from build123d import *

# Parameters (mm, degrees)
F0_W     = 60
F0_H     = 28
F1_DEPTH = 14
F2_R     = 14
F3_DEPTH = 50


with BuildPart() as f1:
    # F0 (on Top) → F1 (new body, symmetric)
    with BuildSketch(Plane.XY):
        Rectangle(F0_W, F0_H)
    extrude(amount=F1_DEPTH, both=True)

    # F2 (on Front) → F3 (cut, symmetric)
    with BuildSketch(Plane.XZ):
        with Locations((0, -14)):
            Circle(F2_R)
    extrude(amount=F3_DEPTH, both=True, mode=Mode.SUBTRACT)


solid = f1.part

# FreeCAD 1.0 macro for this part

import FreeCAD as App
import Part
import Sketcher

doc = App.newDocument("Part")
params = doc.addObject("Spreadsheet::Sheet", "Params")
for row, (alias, value) in enumerate([
    ("sketch1_width", "60 mm"),
    ("sketch1_height", "28 mm"),
    ("pad1_length", "28 mm"),
    ("sketch2_diameter", "28 mm"),
    ("pocket1_length", "100 mm"),
], start=1):
    params.set(f"A{row}", alias)
    params.set(f"B{row}", "=" + value)
    params.setAlias(f"B{row}", alias)

body = doc.addObject("PartDesign::Body", "Body")

# Sketch on XY plane
sketch1 = body.newObject("Sketcher::SketchObject", "Sketch")
sketch1.AttachmentSupport = (doc.getObject("XY_Plane"), [""])
sketch1.MapMode = "FlatFace"
sketch1.addGeometry(Part.LineSegment(App.Vector(-30, 14, 0), App.Vector(-30, -14, 0)), False)
sketch1.addGeometry(Part.LineSegment(App.Vector(-30, -14, 0), App.Vector(30, -14, 0)), False)
sketch1.addGeometry(Part.LineSegment(App.Vector(30, -14, 0), App.Vector(30, 14, 0)), False)
sketch1.addGeometry(Part.LineSegment(App.Vector(30, 14, 0), App.Vector(-30, 14, 0)), False)
sketch1.addConstraint(Sketcher.Constraint("Coincident", 0, 2, 1, 1))
sketch1.addConstraint(Sketcher.Constraint("Coincident", 1, 2, 2, 1))
sketch1.addConstraint(Sketcher.Constraint("Coincident", 2, 2, 3, 1))
sketch1.addConstraint(Sketcher.Constraint("Coincident", 3, 2, 0, 1))
sketch1.addConstraint(Sketcher.Constraint("Vertical", 0))
sketch1.addConstraint(Sketcher.Constraint("Horizontal", 1))
sketch1.addConstraint(Sketcher.Constraint("Vertical", 2))
sketch1.addConstraint(Sketcher.Constraint("Horizontal", 3))
sketch1.addConstraint(Sketcher.Constraint("Symmetric", 0, 2, 2, 2, -1, 1))
sketch1.addConstraint(Sketcher.Constraint("DistanceX", 1, 1, 1, 2, 60.0))
sketch1.addConstraint(Sketcher.Constraint("DistanceY", 0, 2, 0, 1, 28.0))
sketch1.setExpression("Constraints[9]", "Params.sketch1_width")
sketch1.setExpression("Constraints[10]", "Params.sketch1_height")
pad1 = body.newObject("PartDesign::Pad", "Pad")
pad1.Profile = sketch1
pad1.setExpression("Length", "Params.pad1_length")
pad1.Midplane = True

# Sketch on XZ plane
sketch2 = body.newObject("Sketcher::SketchObject", "Sketch001")
sketch2.AttachmentSupport = (doc.getObject("XZ_Plane"), [""])
sketch2.MapMode = "FlatFace"
sketch2.addGeometry(Part.Circle(App.Vector(0, -14, 0), App.Vector(0, 0, 1), 14), False)
sketch2.addConstraint(Sketcher.Constraint("PointOnObject", 0, 3, -2))
sketch2.addConstraint(Sketcher.Constraint("Diameter", 0, 28.0))
sketch2.addConstraint(Sketcher.Constraint("DistanceY", 0, 3, -1, 1, 14.0))
sketch2.setExpression("Constraints[1]", "Params.sketch2_diameter")
pocket1 = body.newObject("PartDesign::Pocket", "Pocket")
pocket1.Profile = sketch2
pocket1.setExpression("Length", "Params.pocket1_length")
pocket1.Midplane = True

doc.recompute()
